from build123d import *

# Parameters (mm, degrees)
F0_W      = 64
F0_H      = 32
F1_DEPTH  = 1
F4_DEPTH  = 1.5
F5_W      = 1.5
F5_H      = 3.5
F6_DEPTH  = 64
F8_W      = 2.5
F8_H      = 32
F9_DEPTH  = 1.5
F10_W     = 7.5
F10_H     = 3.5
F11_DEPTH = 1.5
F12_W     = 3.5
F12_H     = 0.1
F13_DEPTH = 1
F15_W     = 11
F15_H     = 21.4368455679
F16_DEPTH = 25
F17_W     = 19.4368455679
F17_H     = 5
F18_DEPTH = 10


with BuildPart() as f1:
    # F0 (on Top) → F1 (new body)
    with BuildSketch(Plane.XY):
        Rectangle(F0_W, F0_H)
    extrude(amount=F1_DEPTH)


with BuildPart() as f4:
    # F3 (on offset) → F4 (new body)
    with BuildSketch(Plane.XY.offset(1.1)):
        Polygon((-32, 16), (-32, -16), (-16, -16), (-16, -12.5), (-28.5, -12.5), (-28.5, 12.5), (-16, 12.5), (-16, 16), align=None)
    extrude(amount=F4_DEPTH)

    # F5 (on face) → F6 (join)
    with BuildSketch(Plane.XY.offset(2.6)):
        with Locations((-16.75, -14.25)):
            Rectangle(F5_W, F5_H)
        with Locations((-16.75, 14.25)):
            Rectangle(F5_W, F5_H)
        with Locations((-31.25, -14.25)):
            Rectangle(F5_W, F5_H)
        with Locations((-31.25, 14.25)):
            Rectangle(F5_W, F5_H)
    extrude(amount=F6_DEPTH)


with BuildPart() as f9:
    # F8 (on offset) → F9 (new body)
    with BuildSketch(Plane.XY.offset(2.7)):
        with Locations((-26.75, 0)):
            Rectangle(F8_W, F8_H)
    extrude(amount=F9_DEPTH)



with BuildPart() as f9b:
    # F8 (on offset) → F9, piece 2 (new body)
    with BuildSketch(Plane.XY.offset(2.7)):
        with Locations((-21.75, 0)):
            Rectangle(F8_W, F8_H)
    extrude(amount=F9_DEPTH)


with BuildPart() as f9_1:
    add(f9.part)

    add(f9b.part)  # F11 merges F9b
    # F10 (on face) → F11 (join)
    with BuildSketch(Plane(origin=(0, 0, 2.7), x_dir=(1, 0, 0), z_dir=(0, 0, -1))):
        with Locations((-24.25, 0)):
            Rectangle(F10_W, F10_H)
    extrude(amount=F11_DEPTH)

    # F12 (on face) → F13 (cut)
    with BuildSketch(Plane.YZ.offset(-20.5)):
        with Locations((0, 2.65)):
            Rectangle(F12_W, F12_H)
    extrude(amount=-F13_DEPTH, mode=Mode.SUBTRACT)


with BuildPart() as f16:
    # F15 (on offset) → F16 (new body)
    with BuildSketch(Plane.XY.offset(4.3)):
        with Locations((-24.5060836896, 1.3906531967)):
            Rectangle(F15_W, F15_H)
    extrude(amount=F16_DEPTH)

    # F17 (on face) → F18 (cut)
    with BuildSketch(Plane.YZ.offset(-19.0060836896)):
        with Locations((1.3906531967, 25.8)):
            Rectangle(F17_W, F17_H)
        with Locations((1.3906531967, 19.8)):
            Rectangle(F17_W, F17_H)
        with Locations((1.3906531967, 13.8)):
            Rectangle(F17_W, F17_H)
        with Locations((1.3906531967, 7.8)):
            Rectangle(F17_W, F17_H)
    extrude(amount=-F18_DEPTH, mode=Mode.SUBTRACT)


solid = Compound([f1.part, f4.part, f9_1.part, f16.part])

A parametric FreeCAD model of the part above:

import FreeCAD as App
import Part
import Sketcher
Q = App.Units.Quantity


def add_polygon(sketch, points):
    """Adds a closed chain of lines whose ends are joined by coincident constraints."""
    first, n = sketch.GeometryCount, len(points)
    for a, b in zip(points, points[1:] + points[:1]):
        sketch.addGeometry(Part.LineSegment(App.Vector(*a, 0), App.Vector(*b, 0)), False)
    for i in range(n):
        sketch.addConstraint(Sketcher.Constraint("Coincident", first + i, 2, first + (i + 1) % n, 1))

doc = App.newDocument("Part")
body = doc.addObject("PartDesign::Body", "Body")

sketch1 = body.newObject("Sketcher::SketchObject", "Sketch")
sketch1.AttachmentSupport = (doc.getObject("XY_Plane"), [""])
sketch1.MapMode = "FlatFace"
add_polygon(sketch1, [(-32, 16), (-32, -16), (32, -16), (32, 16)])
sketch1.addConstraint([
    Sketcher.Constraint("Vertical", 0),
    Sketcher.Constraint("Horizontal", 1),
    Sketcher.Constraint("Vertical", 2),
    Sketcher.Constraint("Horizontal", 3),
    Sketcher.Constraint("Symmetric", 0, 2, 2, 2, -1, 1),
    Sketcher.Constraint("DistanceX", 1, 1, 1, 2, Q("64 mm")),
    Sketcher.Constraint("DistanceY", 0, 2, 0, 1, Q("32 mm")),
])
pad1 = body.newObject("PartDesign::Pad", "Pad")
pad1.Profile = sketch1
pad1.Length = 1
body2 = doc.addObject("PartDesign::Body", "Body001")

sketch2 = body2.newObject("Sketcher::SketchObject", "Sketch001")
sketch2.AttachmentSupport = (doc.getObject("XY_Plane001"), [""])
sketch2.MapMode = "FlatFace"
sketch2.AttachmentOffset = App.Placement(App.Vector(0, 0, 1.1), App.Rotation())
add_polygon(sketch2, [(-32, 16), (-32, -16), (-16, -16), (-16, -12.5), (-28.5, -12.5), (-28.5, 12.5), (-16, 12.5), (-16, 16)])
sketch2.addConstraint([
    Sketcher.Constraint("Vertical", 0),
    Sketcher.Constraint("Horizontal", 1),
    Sketcher.Constraint("Vertical", 2),
    Sketcher.Constraint("Horizontal", 3),
    Sketcher.Constraint("Vertical", 4),
    Sketcher.Constraint("Horizontal", 5),
    Sketcher.Constraint("Vertical", 6),
    Sketcher.Constraint("Horizontal", 7),
    Sketcher.Constraint("Symmetric", 2, 2, 5, 2, -1),
    Sketcher.Constraint("Equal", 2, 6),
    Sketcher.Constraint("DistanceX", 1, 1, 1, 2, Q("16 mm")),
    Sketcher.Constraint("DistanceY", 0, 2, 0, 1, Q("32 mm")),
    Sketcher.Constraint("DistanceY", 4, 1, 4, 2, Q("25 mm")),
    Sketcher.Constraint("DistanceX", 3, 2, 3, 1, Q("12.5 mm")),
    Sketcher.Constraint("DistanceX", 0, 2, -1, 1, Q("32 mm")),
])
pad2 = body2.newObject("PartDesign::Pad", "Pad001")
pad2.Profile = sketch2
pad2.Length = 1.5

sketch3 = body2.newObject("Sketcher::SketchObject", "Sketch002")
sketch3.AttachmentSupport = (doc.getObject("XY_Plane001"), [""])
sketch3.MapMode = "FlatFace"
sketch3.AttachmentOffset = App.Placement(App.Vector(0, 0, 2.6), App.Rotation())
add_polygon(sketch3, [(-17.5, -12.5), (-17.5, -16), (-16, -16), (-16, -12.5)])
add_polygon(sketch3, [(-17.5, 16), (-17.5, 12.5), (-16, 12.5), (-16, 16)])
add_polygon(sketch3, [(-32, -12.5), (-32, -16), (-30.5, -16), (-30.5, -12.5)])
add_polygon(sketch3, [(-32, 16), (-32, 12.5), (-30.5, 12.5), (-30.5, 16)])
sketch3.addConstraint([
    Sketcher.Constraint("Vertical", 0),
    Sketcher.Constraint("Horizontal", 1),
    Sketcher.Constraint("Vertical", 2),
    Sketcher.Constraint("Horizontal", 3),
    Sketcher.Constraint("Vertical", 4),
    Sketcher.Constraint("Horizontal", 5),
    Sketcher.Constraint("Vertical", 6),
    Sketcher.Constraint("Horizontal", 7),
    Sketcher.Constraint("Vertical", 8),
    Sketcher.Constraint("Horizontal", 9),
    Sketcher.Constraint("Vertical", 10),
    Sketcher.Constraint("Horizontal", 11),
    Sketcher.Constraint("Vertical", 12),
    Sketcher.Constraint("Horizontal", 13),
    Sketcher.Constraint("Vertical", 14),
    Sketcher.Constraint("Horizontal", 15),
    Sketcher.Constraint("Symmetric", 3, 2, 4, 2, -1),
    Sketcher.Constraint("Symmetric", 1, 2, 6, 2, -1),
    Sketcher.Constraint("Symmetric", 11, 2, 12, 2, -1),
    Sketcher.Constraint("Symmetric", 9, 2, 14, 2, -1),
    Sketcher.Constraint("Horizontal", 1, 2, 8, 2),
    Sketcher.Constraint("Horizontal", 3, 2, 10, 2),
    Sketcher.Constraint("Equal", 7, 9),
    Sketcher.Constraint("DistanceX", 1, 1, 1, 2, Q("1.5 mm")),
    Sketcher.Constraint("DistanceY", 0, 2, 0, 1, Q("3.5 mm")),
    Sketcher.Constraint("DistanceY", 0, 2, -1, 1, Q("16 mm")),
    Sketcher.Constraint("DistanceX", 1, 2, -1, 1, Q("16 mm")),
    Sketcher.Constraint("DistanceX", 8, 2, -1, 1, Q("32 mm")),
])
pad3 = body2.newObject("PartDesign::Pad", "Pad002")
pad3.Profile = sketch3
pad3.Length = 64
body3 = doc.addObject("PartDesign::Body", "Body002")

sketch4 = body3.newObject("Sketcher::SketchObject", "Sketch003")
sketch4.AttachmentSupport = (doc.getObject("XY_Plane002"), [""])
sketch4.MapMode = "FlatFace"
sketch4.AttachmentOffset = App.Placement(App.Vector(0, 0, 2.7), App.Rotation())
add_polygon(sketch4, [(-28, 16), (-28, -16), (-25.5, -16), (-25.5, 16)])
sketch4.addConstraint([
    Sketcher.Constraint("Vertical", 0),
    Sketcher.Constraint("Horizontal", 1),
    Sketcher.Constraint("Vertical", 2),
    Sketcher.Constraint("Horizontal", 3),
    Sketcher.Constraint("DistanceY", 0, 2, 0, 1, Q("32 mm")),
    Sketcher.Constraint("DistanceX", 1, 1, 1, 2, Q("2.5 mm")),
    Sketcher.Constraint("DistanceX", 0, 2, -1, 1, Q("28 mm")),
    Sketcher.Constraint("DistanceY", 0, 2, -1, 1, Q("16 mm")),
])
pad4 = body3.newObject("PartDesign::Pad", "Pad003")
pad4.Profile = sketch4
pad4.Length = 1.5
body4 = doc.addObject("PartDesign::Body", "Body003")

sketch5 = body4.newObject("Sketcher::SketchObject", "Sketch004")
sketch5.AttachmentSupport = (doc.getObject("XY_Plane003"), [""])
sketch5.MapMode = "FlatFace"
sketch5.AttachmentOffset = App.Placement(App.Vector(0, 0, 2.7), App.Rotation())
add_polygon(sketch5, [(-23, 16), (-23, -16), (-20.5, -16), (-20.5, 16)])
sketch5.addConstraint([
    Sketcher.Constraint("Vertical", 0),
    Sketcher.Constraint("Horizontal", 1),
    Sketcher.Constraint("Vertical", 2),
    Sketcher.Constraint("Horizontal", 3),
    Sketcher.Constraint("DistanceY", 0, 2, 0, 1, Q("32 mm")),
    Sketcher.Constraint("DistanceX", 1, 1, 1, 2, Q("2.5 mm")),
    Sketcher.Constraint("DistanceX", 0, 2, -1, 1, Q("23 mm")),
    Sketcher.Constraint("DistanceY", 0, 2, -1, 1, Q("16 mm")),
])
pad5 = body4.newObject("PartDesign::Pad", "Pad004")
pad5.Profile = sketch5
pad5.Length = 1.5
body3.AllowCompound = True
doc.recompute()

boolean = body3.newObject("PartDesign::Boolean", "Boolean")
boolean.Type = "Fuse"
boolean.addObjects([body4])

sketch6 = body3.newObject("Sketcher::SketchObject", "Sketch005")
sketch6.AttachmentSupport = (doc.getObject("XY_Plane002"), [""])
sketch6.MapMode = "FlatFace"
sketch6.AttachmentOffset = App.Placement(App.Vector(0, 0, 2.7), App.Rotation())
add_polygon(sketch6, [(-28, -1.8), (-28, 1.8), (-20.5, 1.8), (-20.5, -1.8)])
sketch6.addConstraint([
    Sketcher.Constraint("Vertical", 0),
    Sketcher.Constraint("Horizontal", 1),
    Sketcher.Constraint("Vertical", 2),
    Sketcher.Constraint("Horizontal", 3),
    Sketcher.Constraint("DistanceX", 1, 1, 1, 2, Q("7.5 mm")),
    Sketcher.Constraint("DistanceY", 0, 1, 0, 2, Q("3.5 mm")),
    Sketcher.Constraint("DistanceX", 0, 2, -1, 1, Q("28 mm")),
    Sketcher.Constraint("DistanceY", -1, 1, 0, 2, Q("1.75 mm")),
])
pad6 = body3.newObject("PartDesign::Pad", "Pad005")
pad6.Profile = sketch6
pad6.Length = 1.5
pad6.Reversed = True

sketch7 = body3.newObject("Sketcher::SketchObject", "Sketch006")
sketch7.AttachmentSupport = (doc.getObject("YZ_Plane002"), [""])
sketch7.MapMode = "FlatFace"
sketch7.AttachmentOffset = App.Placement(App.Vector(0, 0, -20.5), App.Rotation())
add_polygon(sketch7, [(-1.75, 2.7), (-1.75, 2.6), (1.75, 2.6), (1.75, 2.7)])
sketch7.addConstraint([
    Sketcher.Constraint("Vertical", 0),
    Sketcher.Constraint("Horizontal", 1),
    Sketcher.Constraint("Vertical", 2),
    Sketcher.Constraint("Horizontal", 3),
    Sketcher.Constraint("DistanceX", 1, 1, 1, 2, Q("3.5 mm")),
    Sketcher.Constraint("DistanceY", 0, 2, 0, 1, Q("0.1 mm")),
    Sketcher.Constraint("DistanceY", -1, 1, 0, 2, Q("2.6 mm")),
    Sketcher.Constraint("DistanceX", 0, 2, -1, 1, Q("1.75 mm")),
])
pocket1 = body3.newObject("PartDesign::Pocket", "Pocket")
pocket1.Profile = sketch7
pocket1.Length = 1
body5 = doc.addObject("PartDesign::Body", "Body004")

sketch8 = body5.newObject("Sketcher::SketchObject", "Sketch007")
sketch8.AttachmentSupport = (doc.getObject("XY_Plane004"), [""])
sketch8.MapMode = "FlatFace"
sketch8.AttachmentOffset = App.Placement(App.Vector(0, 0, 4.3), App.Rotation())
add_polygon(sketch8, [(-30, 12), (-30, -9), (-19, -9), (-19, 12)])
sketch8.addConstraint([
    Sketcher.Constraint("Vertical", 0),
    Sketcher.Constraint("Horizontal", 1),
    Sketcher.Constraint("Vertical", 2),
    Sketcher.Constraint("Horizontal", 3),
    Sketcher.Constraint("DistanceX", 1, 1, 1, 2, Q("11 mm")),
    Sketcher.Constraint("DistanceY", 0, 2, 0, 1, Q("21.436846 mm")),
    Sketcher.Constraint("DistanceY", 0, 2, -1, 1, Q("9.32777 mm")),
    Sketcher.Constraint("DistanceX", 0, 2, -1, 1, Q("30.006084 mm")),
])
pad7 = body5.newObject("PartDesign::Pad", "Pad006")
pad7.Profile = sketch8
pad7.Length = 25

sketch9 = body5.newObject("Sketcher::SketchObject", "Sketch008")
sketch9.AttachmentSupport = (doc.getObject("YZ_Plane004"), [""])
sketch9.MapMode = "FlatFace"
sketch9.AttachmentOffset = App.Placement(App.Vector(0, 0, -19.006084), App.Rotation())
add_polygon(sketch9, [(-8, 28), (-8, 23), (11, 23), (11, 28)])
add_polygon(sketch9, [(-8, 22), (-8, 17), (11, 17), (11, 22)])
add_polygon(sketch9, [(-8, 16), (-8, 11), (11, 11), (11, 16)])
add_polygon(sketch9, [(-8, 10), (-8, 5), (11, 5), (11, 10)])
sketch9.addConstraint([
    Sketcher.Constraint("Vertical", 0),
    Sketcher.Constraint("Horizontal", 1),
    Sketcher.Constraint("Vertical", 2),
    Sketcher.Constraint("Horizontal", 3),
    Sketcher.Constraint("Vertical", 4),
    Sketcher.Constraint("Horizontal", 5),
    Sketcher.Constraint("Vertical", 6),
    Sketcher.Constraint("Horizontal", 7),
    Sketcher.Constraint("Vertical", 8),
    Sketcher.Constraint("Horizontal", 9),
    Sketcher.Constraint("Vertical", 10),
    Sketcher.Constraint("Horizontal", 11),
    Sketcher.Constraint("Vertical", 12),
    Sketcher.Constraint("Horizontal", 13),
    Sketcher.Constraint("Vertical", 14),
    Sketcher.Constraint("Horizontal", 15),
    Sketcher.Constraint("Vertical", 3, 2, 4, 2),
    Sketcher.Constraint("Vertical", 2, 2, 5, 2),
    Sketcher.Constraint("Vertical", 7, 2, 8, 2),
    Sketcher.Constraint("Vertical", 6, 2, 9, 2),
    Sketcher.Constraint("Vertical", 11, 2, 12, 2),
    Sketcher.Constraint("Vertical", 10, 2, 13, 2),
    Sketcher.Constraint("Equal", 2, 4),
    Sketcher.Constraint("Equal", 6, 8),
    Sketcher.Constraint("Equal", 10, 12),
    Sketcher.Constraint("DistanceY", 0, 2, 0, 1, Q("5 mm")),
    Sketcher.Constraint("DistanceY", 4, 2, 0, 2, Q("6 mm")),
    Sketcher.Constraint("DistanceY", 8, 2, 4, 2, Q("6 mm")),
    Sketcher.Constraint("DistanceY", 12, 2, 8, 2, Q("6 mm")),
    Sketcher.Constraint("DistanceY", -1, 1, 0, 2, Q("23.3 mm")),
    Sketcher.Constraint("DistanceX", 1, 1, 1, 2, Q("19.436846 mm")),
    Sketcher.Constraint("DistanceX", 0, 2, -1, 1, Q("8.32777 mm")),
])
pocket2 = body5.newObject("PartDesign::Pocket", "Pocket001")
pocket2.Profile = sketch9
pocket2.Length = 10

doc.recompute()
